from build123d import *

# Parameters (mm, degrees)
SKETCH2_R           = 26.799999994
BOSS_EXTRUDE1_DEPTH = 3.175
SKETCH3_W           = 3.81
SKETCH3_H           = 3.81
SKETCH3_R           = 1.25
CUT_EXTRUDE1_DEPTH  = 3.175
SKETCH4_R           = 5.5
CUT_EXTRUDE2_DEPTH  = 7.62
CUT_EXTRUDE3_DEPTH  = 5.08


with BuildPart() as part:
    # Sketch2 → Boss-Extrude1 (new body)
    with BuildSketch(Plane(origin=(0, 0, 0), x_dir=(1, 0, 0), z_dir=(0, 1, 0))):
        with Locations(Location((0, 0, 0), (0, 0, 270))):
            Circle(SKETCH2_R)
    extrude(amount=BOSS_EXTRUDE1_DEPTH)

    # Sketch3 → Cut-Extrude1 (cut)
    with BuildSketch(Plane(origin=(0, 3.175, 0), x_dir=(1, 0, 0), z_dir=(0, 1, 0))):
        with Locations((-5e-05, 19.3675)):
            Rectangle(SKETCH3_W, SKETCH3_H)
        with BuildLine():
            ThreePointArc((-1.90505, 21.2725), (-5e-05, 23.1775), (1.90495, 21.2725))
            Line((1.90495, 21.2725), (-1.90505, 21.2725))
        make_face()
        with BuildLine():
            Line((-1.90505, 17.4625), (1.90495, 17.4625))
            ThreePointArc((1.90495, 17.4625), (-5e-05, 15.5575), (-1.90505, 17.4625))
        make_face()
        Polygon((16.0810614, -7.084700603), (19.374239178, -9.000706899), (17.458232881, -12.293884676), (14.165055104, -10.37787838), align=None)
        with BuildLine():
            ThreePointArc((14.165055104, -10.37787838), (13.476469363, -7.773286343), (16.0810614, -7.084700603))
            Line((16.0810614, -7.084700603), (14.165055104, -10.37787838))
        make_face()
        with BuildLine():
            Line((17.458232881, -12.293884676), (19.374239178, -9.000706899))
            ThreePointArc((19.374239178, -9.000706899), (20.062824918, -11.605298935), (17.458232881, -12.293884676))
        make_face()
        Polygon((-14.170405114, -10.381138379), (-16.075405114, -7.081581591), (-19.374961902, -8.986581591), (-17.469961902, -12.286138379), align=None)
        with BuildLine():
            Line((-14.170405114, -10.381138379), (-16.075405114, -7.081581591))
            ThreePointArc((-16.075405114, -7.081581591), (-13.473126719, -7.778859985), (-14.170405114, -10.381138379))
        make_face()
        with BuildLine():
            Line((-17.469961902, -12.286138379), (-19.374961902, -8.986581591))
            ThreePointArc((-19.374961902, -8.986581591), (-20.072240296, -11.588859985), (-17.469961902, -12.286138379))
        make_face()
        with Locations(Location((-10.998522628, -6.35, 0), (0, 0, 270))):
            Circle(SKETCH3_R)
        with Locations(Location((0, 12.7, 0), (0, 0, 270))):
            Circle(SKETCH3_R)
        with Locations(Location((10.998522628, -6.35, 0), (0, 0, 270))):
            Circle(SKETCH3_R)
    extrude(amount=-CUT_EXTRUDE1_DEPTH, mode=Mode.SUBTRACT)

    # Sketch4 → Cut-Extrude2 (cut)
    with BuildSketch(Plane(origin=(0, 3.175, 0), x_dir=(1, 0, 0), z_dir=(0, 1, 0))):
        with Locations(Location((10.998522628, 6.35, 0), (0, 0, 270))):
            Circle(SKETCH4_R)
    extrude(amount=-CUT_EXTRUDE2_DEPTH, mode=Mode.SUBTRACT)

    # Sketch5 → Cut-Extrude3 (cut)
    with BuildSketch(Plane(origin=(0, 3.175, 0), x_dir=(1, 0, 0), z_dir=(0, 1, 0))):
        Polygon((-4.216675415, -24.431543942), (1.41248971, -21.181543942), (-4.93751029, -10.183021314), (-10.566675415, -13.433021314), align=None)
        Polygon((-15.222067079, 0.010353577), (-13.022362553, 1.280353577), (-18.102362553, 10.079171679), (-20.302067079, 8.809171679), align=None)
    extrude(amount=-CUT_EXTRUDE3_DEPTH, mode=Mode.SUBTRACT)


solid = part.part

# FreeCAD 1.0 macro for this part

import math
import FreeCAD as App
import Part
import Sketcher
from FreeCAD import Vector
Q = App.Units.Quantity


def add_polygon(sketch, points):
    """Adds a closed chain of lines whose ends are joined by coincident constraints."""
    first, n = sketch.GeometryCount, len(points)
    for a, b in zip(points, points[1:] + points[:1]):
        sketch.addGeometry(Part.LineSegment(App.Vector(*a, 0), App.Vector(*b, 0)), False)
    for i in range(n):
        sketch.addConstraint(Sketcher.Constraint("Coincident", first + i, 2, first + (i + 1) % n, 1))

doc = App.newDocument("Part")
body = doc.addObject("PartDesign::Body", "Body")

# Sketch on XZ plane
sketch1 = body.newObject("Sketcher::SketchObject", "Sketch")
sketch1.AttachmentSupport = (doc.getObject("XZ_Plane"), [""])
sketch1.MapMode = "FlatFace"
sketch1.addGeometry(Part.Circle(Vector(0, 0, 0), Vector(0, 0, 1), 26.8), False)
sketch1.addConstraint([
    Sketcher.Constraint("Coincident", 0, 3, -1, 1),
    Sketcher.Constraint("Diameter", 0, Q("53.6 mm")),
])
pad1 = body.newObject("PartDesign::Pad", "Pad")
pad1.Profile = sketch1
pad1.Length = Q("0.125 in")
pad1.Reversed = True

# Sketch on XZ plane
sketch2 = body.newObject("Sketcher::SketchObject", "Sketch001")
sketch2.AttachmentSupport = (doc.getObject("XZ_Plane"), [""])
sketch2.MapMode = "FlatFace"
sketch2.AttachmentOffset = App.Placement(Vector(0, 0, -0.125 * 25.4), App.Rotation())
sketch2.addGeometry([
    Part.LineSegment(Vector(-1.90505, -21.2725, 0), Vector(-1.90505, -17.4625, 0)),  # 0
    Part.ArcOfCircle(Part.Circle(Vector(-0.00005, -17.4625, 0), Vector(0, 0, 1), 1.905), math.radians(0), math.radians(180)),  # 1
    Part.LineSegment(Vector(1.90495, -17.4625, 0), Vector(1.90495, -21.2725, 0)),  # 2
    Part.ArcOfCircle(Part.Circle(Vector(-0.00005, -21.2725, 0), Vector(0, 0, 1), 1.905), math.radians(180), math.radians(360)),  # 3
    Part.LineSegment(Vector(19.374239, 9.000707, 0), Vector(16.081061, 7.084701, 0)),  # 4
    Part.ArcOfCircle(Part.Circle(Vector(15.123058, 8.731289, 0), Vector(0, 0, 1), 1.905), math.radians(120.191306), math.radians(300.191306)),  # 5
    Part.LineSegment(Vector(14.165055, 10.377878, 0), Vector(17.458233, 12.293885, 0)),  # 6
    Part.ArcOfCircle(Part.Circle(Vector(18.416236, 10.647296, 0), Vector(0, 0, 1), 1.905), math.radians(-59.808694), math.radians(120.191306)),  # 7
    Part.LineSegment(Vector(-16.075405, 7.081582, 0), Vector(-19.374962, 8.986582, 0)),  # 8
    Part.ArcOfCircle(Part.Circle(Vector(-18.422462, 10.63636, 0), Vector(0, 0, 1), 1.905), math.radians(60), math.radians(240)),  # 9
    Part.LineSegment(Vector(-17.469962, 12.286138, 0), Vector(-14.170405, 10.381138, 0)),  # 10
    Part.ArcOfCircle(Part.Circle(Vector(-15.122905, 8.73136, 0), Vector(0, 0, 1), 1.905), math.radians(-120), math.radians(60)),  # 11
    Part.Circle(Vector(-10.998523, 6.35, 0), Vector(0, 0, 1), 1.25),  # 12
    Part.Circle(Vector(0, -12.7, 0), Vector(0, 0, 1), 1.25),  # 13
    Part.Circle(Vector(10.998523, 6.35, 0), Vector(0, 0, 1), 1.25),  # 14
], False)
sketch2.addConstraint([
    Sketcher.Constraint("Tangent", 0, 2, 1, 2),
    Sketcher.Constraint("Tangent", 1, 1, 2, 1),
    Sketcher.Constraint("Tangent", 2, 2, 3, 2),
    Sketcher.Constraint("Tangent", 3, 1, 0, 1),
    Sketcher.Constraint("Tangent", 4, 2, 5, 2),
    Sketcher.Constraint("Tangent", 5, 1, 6, 1),
    Sketcher.Constraint("Tangent", 6, 2, 7, 2),
    Sketcher.Constraint("Tangent", 7, 1, 4, 1),
    Sketcher.Constraint("Tangent", 8, 2, 9, 2),
    Sketcher.Constraint("Tangent", 9, 1, 10, 1),
    Sketcher.Constraint("Tangent", 10, 2, 11, 2),
    Sketcher.Constraint("Tangent", 11, 1, 8, 1),
    Sketcher.Constraint("Vertical", 0),
    Sketcher.Constraint("Vertical", 2),
    Sketcher.Constraint("Equal", 3, 5),
    Sketcher.Constraint("Equal", 5, 7),
    Sketcher.Constraint("Equal", 7, 9),
    Sketcher.Constraint("Equal", 9, 11),
    Sketcher.Constraint("Equal", 12, 13),
    Sketcher.Constraint("Equal", 13, 14),
    Sketcher.Constraint("Symmetric", 12, 3, 14, 3, -2),
    Sketcher.Constraint("PointOnObject", 13, 3, -2),
    Sketcher.Constraint("Equal", 6, 8),
    Sketcher.Constraint("Angle", 8, Q("150 deg")),
    Sketcher.Constraint("Radius", 1, Q("0.075 in")),
    Sketcher.Constraint("DistanceY", 0, 1, 0, 2, Q("0.15 in")),
    Sketcher.Constraint("DistanceY", 13, 3, -1, 1, Q("0.5 in")),
    Sketcher.Constraint("Distance", 4, Q("0.15 in")),
    Sketcher.Constraint("Diameter", 12, Q("2.5 mm")),
    Sketcher.Constraint("DistanceY", -1, 1, 12, 3, Q("0.25 in")),
    Sketcher.Constraint("DistanceY", 1, 3, -1, 1, Q("0.6875 in")),
    Sketcher.Constraint("DistanceX", 14, 3, 4, 2, Q("0.2001 in")),
    Sketcher.Constraint("DistanceY", -1, 1, 4, 2, Q("7.084701 mm")),
    Sketcher.Constraint("DistanceX", -1, 1, 5, 3, Q("15.123058 mm")),
    Sketcher.Constraint("DistanceY", -1, 1, 5, 3, Q("8.731289 mm")),
    Sketcher.Constraint("DistanceX", 9, 3, -1, 1, Q("18.422462 mm")),
    Sketcher.Constraint("DistanceY", -1, 1, 9, 3, Q("10.63636 mm")),
    Sketcher.Constraint("DistanceX", 0, 2, -1, 1, Q("1.90505 mm")),
])
pocket1 = body.newObject("PartDesign::Pocket", "Pocket")
pocket1.Profile = sketch2
pocket1.Length = Q("0.125 in")
pocket1.Reversed = True

# Sketch on XZ plane
sketch3 = body.newObject("Sketcher::SketchObject", "Sketch002")
sketch3.AttachmentSupport = (doc.getObject("XZ_Plane"), [""])
sketch3.MapMode = "FlatFace"
sketch3.AttachmentOffset = App.Placement(Vector(0, 0, -0.125 * 25.4), App.Rotation())
sketch3.addGeometry(Part.Circle(Vector(10.998523, -6.35, 0), Vector(0, 0, 1), 5.5), False)
sketch3.addConstraint([
    Sketcher.Constraint("Diameter", 0, Q("11 mm")),
    Sketcher.Constraint("DistanceY", 0, 3, -1, 1, Q("0.25 in")),
    Sketcher.Constraint("DistanceX", -1, 1, 0, 3, Q("10.998523 mm")),
])
pocket2 = body.newObject("PartDesign::Pocket", "Pocket001")
pocket2.Profile = sketch3
pocket2.Length = Q("0.3 in")
pocket2.Reversed = True

# Sketch on XZ plane
sketch4 = body.newObject("Sketcher::SketchObject", "Sketch003")
sketch4.AttachmentSupport = (doc.getObject("XZ_Plane"), [""])
sketch4.MapMode = "FlatFace"
sketch4.AttachmentOffset = App.Placement(Vector(0, 0, -0.125 * 25.4), App.Rotation())
add_polygon(sketch4, [(-4.216675, 24.431544), (1.41249, 21.181544), (-4.93751, 10.183021), (-10.566675, 13.433021)])  # lines 0-3
add_polygon(sketch4, [(-15.222067, -0.010354), (-13.022363, -1.280354), (-18.102363, -10.079172), (-20.302067, -8.809172)])  # lines 4-7
sketch4.addConstraint([
    Sketcher.Constraint("Perpendicular", 0, 1),
    Sketcher.Constraint("Perpendicular", 1, 2),
    Sketcher.Constraint("Perpendicular", 2, 3),
    Sketcher.Constraint("Perpendicular", 3, 4),
    Sketcher.Constraint("Perpendicular", 4, 5),
    Sketcher.Constraint("Perpendicular", 5, 6),
    Sketcher.Constraint("Perpendicular", 6, 7),
    Sketcher.Constraint("Angle", 0, Q("-30 deg")),
    Sketcher.Constraint("Distance", 1, Q("0.5 in")),
    Sketcher.Constraint("Distance", 4, Q("0.1 in")),
    Sketcher.Constraint("Distance", 5, Q("0.4 in")),
    Sketcher.Constraint("Distance", 0, Q("6.5 mm")),
    Sketcher.Constraint("DistanceX", -1, 1, 0, 2, Q("1.41249 mm")),
    Sketcher.Constraint("DistanceY", -1, 1, 1, 2, Q("10.183021 mm")),
    Sketcher.Constraint("DistanceY", 5, 2, -1, 1, Q("10.079172 mm")),
    Sketcher.Constraint("DistanceX", 6, 2, 2, 2, Q("9.735392 mm")),
])
pocket3 = body.newObject("PartDesign::Pocket", "Pocket002")
pocket3.Profile = sketch4
pocket3.Length = Q("0.2 in")
pocket3.Reversed = True

doc.recompute()
